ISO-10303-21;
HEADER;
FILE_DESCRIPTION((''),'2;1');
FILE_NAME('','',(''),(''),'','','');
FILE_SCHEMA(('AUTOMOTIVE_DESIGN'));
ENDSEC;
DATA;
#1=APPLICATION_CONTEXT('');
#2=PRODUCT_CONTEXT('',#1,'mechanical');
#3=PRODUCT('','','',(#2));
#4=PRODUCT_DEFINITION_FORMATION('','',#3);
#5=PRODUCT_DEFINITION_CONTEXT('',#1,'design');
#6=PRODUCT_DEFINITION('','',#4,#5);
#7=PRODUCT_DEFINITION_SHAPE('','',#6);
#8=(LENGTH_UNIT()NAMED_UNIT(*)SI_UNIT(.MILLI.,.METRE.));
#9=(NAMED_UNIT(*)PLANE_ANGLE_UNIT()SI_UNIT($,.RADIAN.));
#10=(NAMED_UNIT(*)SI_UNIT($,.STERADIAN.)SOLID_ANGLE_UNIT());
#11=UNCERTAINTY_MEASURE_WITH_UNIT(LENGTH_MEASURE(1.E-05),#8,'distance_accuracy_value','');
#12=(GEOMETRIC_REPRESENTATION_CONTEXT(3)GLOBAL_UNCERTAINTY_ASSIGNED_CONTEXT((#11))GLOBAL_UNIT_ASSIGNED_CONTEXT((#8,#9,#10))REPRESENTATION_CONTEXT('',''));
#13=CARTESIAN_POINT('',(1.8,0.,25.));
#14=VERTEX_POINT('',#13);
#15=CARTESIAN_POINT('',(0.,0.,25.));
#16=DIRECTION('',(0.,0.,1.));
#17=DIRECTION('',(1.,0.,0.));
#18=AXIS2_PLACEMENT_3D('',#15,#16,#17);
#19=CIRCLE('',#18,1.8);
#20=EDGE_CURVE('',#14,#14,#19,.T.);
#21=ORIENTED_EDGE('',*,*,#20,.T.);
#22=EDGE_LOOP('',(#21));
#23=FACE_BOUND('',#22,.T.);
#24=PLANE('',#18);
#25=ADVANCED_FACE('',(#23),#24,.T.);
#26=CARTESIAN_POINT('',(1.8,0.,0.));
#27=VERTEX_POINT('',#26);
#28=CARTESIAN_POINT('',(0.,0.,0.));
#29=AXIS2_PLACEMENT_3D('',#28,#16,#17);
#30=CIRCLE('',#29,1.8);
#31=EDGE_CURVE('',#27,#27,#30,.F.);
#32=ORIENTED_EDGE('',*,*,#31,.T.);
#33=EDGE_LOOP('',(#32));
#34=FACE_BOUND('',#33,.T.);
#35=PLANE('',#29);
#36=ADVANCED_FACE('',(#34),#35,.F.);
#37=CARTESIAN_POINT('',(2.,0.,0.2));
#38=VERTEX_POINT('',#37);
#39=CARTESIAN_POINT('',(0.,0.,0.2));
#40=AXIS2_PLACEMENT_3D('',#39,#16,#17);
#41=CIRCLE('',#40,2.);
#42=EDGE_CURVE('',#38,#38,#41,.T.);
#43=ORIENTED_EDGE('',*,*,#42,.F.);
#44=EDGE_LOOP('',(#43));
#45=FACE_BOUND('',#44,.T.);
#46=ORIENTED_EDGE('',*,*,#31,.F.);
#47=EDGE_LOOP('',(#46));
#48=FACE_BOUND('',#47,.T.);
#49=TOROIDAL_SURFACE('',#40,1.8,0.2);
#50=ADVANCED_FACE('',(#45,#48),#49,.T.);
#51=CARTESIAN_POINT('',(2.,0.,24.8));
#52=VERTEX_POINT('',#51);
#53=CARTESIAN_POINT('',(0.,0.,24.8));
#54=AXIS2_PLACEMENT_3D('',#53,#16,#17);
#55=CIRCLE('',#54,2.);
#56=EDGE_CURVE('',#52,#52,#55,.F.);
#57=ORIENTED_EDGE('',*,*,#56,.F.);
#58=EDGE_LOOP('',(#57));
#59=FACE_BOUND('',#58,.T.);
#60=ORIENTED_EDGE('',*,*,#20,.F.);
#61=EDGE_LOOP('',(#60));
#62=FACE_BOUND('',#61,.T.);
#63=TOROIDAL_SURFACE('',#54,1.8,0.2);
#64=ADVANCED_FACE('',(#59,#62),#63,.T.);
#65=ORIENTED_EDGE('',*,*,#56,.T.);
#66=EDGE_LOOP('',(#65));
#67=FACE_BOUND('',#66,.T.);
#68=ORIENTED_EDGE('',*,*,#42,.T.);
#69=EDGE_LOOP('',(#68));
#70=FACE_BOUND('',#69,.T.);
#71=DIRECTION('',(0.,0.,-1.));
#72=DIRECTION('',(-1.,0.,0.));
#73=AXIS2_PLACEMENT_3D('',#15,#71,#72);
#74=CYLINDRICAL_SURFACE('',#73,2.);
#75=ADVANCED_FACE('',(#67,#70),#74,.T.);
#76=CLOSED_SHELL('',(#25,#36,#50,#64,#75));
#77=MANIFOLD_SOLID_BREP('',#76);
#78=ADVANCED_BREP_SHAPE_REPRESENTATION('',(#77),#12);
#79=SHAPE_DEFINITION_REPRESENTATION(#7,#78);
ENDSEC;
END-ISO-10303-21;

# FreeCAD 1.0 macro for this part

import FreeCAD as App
import Part
import Sketcher

V = App.Vector
Q = App.Units.Quantity


def edges_at(feature, points):
    """Names of the edges that pass closest to the given points."""
    edges = feature.Shape.Edges
    near = lambda p: min(range(len(edges)), key=lambda i: edges[i].distToShape(Part.Vertex(*p))[0])
    return sorted({f"Edge{near(p) + 1}" for p in points})

doc = App.newDocument("Part")
params = doc.addObject("Spreadsheet::Sheet", "Params")
for row, (alias, value) in enumerate([
    ("sketch1_diameter", "4 mm"),
    ("pad1_length", "25 mm"),
    ("fillet_radius", "0.2 mm"),
], start=1):
    params.set(f"A{row}", alias)
    params.set(f"B{row}", "=" + value)
    params.setAlias(f"B{row}", alias)

body = doc.addObject("PartDesign::Body", "Body")

sketch1 = body.newObject("Sketcher::SketchObject", "Sketch")
sketch1.AttachmentSupport = (doc.getObject("XY_Plane"), [""])
sketch1.MapMode = "FlatFace"
sketch1.addGeometry(Part.Circle(V(0, 0, 0), V(0, 0, 1), 2), False)
sketch1.addConstraint(Sketcher.Constraint("Coincident", 0, 3, -1, 1))
sketch1.addConstraint(Sketcher.Constraint("Diameter", 0, Q("4 mm")))
sketch1.setExpression("Constraints[1]", "Params.sketch1_diameter")
pad1 = body.newObject("PartDesign::Pad", "Pad")
pad1.Profile = sketch1
pad1.setExpression("Length", "Params.pad1_length")
doc.recompute()

fillet = body.newObject("PartDesign::Fillet", "Fillet")
fillet.Base = (pad1, edges_at(pad1, [(-2, 0, 0), (-2, 0, 25)]))
fillet.setExpression("Radius", "Params.fillet_radius")

doc.recompute()
